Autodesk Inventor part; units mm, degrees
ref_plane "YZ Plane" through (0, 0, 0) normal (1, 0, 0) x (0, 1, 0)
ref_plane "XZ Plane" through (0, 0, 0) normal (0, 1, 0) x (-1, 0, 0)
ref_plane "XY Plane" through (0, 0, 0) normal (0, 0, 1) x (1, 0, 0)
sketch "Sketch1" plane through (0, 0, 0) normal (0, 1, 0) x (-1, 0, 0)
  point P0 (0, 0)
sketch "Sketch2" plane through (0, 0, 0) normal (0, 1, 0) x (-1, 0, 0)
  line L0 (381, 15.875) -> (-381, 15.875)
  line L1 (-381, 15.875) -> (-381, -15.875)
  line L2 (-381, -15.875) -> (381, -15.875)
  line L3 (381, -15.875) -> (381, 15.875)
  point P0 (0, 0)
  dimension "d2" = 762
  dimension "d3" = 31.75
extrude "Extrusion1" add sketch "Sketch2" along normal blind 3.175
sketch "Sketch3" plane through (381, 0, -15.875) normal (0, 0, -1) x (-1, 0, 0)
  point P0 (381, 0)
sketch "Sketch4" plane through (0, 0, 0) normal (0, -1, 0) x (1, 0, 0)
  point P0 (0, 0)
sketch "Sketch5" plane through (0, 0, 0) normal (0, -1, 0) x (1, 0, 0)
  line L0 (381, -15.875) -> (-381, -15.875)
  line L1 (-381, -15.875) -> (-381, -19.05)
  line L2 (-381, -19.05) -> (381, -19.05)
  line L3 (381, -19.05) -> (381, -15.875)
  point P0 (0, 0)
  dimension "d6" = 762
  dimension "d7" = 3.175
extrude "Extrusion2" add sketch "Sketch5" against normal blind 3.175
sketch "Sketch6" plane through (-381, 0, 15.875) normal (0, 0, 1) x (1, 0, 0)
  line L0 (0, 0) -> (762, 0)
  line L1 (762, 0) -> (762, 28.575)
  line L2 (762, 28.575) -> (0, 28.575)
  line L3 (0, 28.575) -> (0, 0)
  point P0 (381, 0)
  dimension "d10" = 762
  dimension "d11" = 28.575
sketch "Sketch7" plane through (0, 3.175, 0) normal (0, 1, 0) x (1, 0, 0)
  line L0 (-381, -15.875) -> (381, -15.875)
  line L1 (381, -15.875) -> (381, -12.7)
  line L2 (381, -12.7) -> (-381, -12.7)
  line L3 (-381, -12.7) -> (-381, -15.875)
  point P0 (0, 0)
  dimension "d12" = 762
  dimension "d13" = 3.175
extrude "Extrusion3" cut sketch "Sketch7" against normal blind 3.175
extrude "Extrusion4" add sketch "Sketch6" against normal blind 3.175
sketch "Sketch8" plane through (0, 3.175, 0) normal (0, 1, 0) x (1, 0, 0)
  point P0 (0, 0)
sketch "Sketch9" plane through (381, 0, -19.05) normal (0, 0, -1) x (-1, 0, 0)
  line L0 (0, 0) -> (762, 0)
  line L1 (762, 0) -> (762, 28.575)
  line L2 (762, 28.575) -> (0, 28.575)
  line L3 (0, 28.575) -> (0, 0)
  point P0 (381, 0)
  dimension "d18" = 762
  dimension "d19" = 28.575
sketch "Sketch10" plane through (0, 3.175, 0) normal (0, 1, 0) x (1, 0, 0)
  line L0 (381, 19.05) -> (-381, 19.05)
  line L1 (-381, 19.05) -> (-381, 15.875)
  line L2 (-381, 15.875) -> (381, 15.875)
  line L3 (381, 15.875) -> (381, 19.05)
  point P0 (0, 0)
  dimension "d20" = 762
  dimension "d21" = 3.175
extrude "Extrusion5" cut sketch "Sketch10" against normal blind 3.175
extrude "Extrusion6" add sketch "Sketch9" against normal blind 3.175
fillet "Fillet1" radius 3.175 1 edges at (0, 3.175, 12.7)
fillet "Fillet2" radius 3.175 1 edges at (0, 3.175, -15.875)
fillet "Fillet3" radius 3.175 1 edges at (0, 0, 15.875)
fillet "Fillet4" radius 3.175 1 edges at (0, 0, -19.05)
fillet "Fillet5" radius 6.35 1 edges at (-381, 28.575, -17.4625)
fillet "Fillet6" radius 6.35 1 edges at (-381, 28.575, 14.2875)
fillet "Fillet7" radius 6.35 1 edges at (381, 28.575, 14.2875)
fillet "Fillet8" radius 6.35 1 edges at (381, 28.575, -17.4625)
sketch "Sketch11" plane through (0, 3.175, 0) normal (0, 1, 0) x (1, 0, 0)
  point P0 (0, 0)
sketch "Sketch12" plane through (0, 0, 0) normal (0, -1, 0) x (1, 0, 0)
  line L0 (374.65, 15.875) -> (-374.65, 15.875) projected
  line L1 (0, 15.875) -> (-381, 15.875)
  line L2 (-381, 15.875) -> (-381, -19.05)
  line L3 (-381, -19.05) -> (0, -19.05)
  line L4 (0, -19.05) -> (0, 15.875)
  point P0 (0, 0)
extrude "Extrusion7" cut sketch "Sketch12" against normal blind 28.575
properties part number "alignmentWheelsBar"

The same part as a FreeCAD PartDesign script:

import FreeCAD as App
import Part
import Sketcher
from FreeCAD import Vector
Q = App.Units.Quantity


def edges_at(feature, points):
    """Names of the edges that pass closest to the given points."""
    edges = feature.Shape.Edges
    near = lambda p: min(range(len(edges)), key=lambda i: edges[i].distToShape(Part.Vertex(*p))[0])
    return sorted({f"Edge{near(p) + 1}" for p in points})

doc = App.newDocument("Part")
body = doc.addObject("PartDesign::Body", "Body")

# Sketch on XZ plane
sketch1 = doc.addObject("Sketcher::SketchObject", "Sketch")
body.addObject(sketch1)
sketch1.AttachmentSupport = (doc.XZ_Plane, [""])
sketch1.MapMode = "FlatFace"
sketch1.addGeometry(Part.LineSegment(Vector(-381, -15.875, 0), Vector(-381, 15.875, 0)), False)
sketch1.addGeometry(Part.LineSegment(Vector(-381, 15.875, 0), Vector(381, 15.875, 0)), False)
sketch1.addGeometry(Part.LineSegment(Vector(381, 15.875, 0), Vector(381, -15.875, 0)), False)
sketch1.addGeometry(Part.LineSegment(Vector(381, -15.875, 0), Vector(-381, -15.875, 0)), False)
sketch1.addConstraint(Sketcher.Constraint("Coincident", 0, 2, 1, 1))
sketch1.addConstraint(Sketcher.Constraint("Coincident", 1, 2, 2, 1))
sketch1.addConstraint(Sketcher.Constraint("Coincident", 2, 2, 3, 1))
sketch1.addConstraint(Sketcher.Constraint("Coincident", 3, 2, 0, 1))
sketch1.addConstraint(Sketcher.Constraint("Vertical", 0))
sketch1.addConstraint(Sketcher.Constraint("Horizontal", 1))
sketch1.addConstraint(Sketcher.Constraint("Vertical", 2))
sketch1.addConstraint(Sketcher.Constraint("Horizontal", 3))
sketch1.addConstraint(Sketcher.Constraint("Symmetric", 0, 2, 2, 2, -1, 1))
sketch1.addConstraint(Sketcher.Constraint("DistanceX", 1, 1, 1, 2, Q("30 in")))
sketch1.addConstraint(Sketcher.Constraint("DistanceY", 0, 1, 0, 2, Q("1.25 in")))
pad1 = doc.addObject("PartDesign::Pad", "Pad")
body.addObject(pad1)
pad1.Profile = sketch1
pad1.Length = Q("0.125 in")
pad1.Reversed = True

# Sketch on XZ plane
sketch2 = doc.addObject("Sketcher::SketchObject", "Sketch001")
body.addObject(sketch2)
sketch2.AttachmentSupport = (doc.XZ_Plane, [""])
sketch2.MapMode = "FlatFace"
sketch2.addGeometry(Part.LineSegment(Vector(381, -19.05, 0), Vector(381, -15.875, 0)), False)
sketch2.addGeometry(Part.LineSegment(Vector(381, -15.875, 0), Vector(-381, -15.875, 0)), False)
sketch2.addGeometry(Part.LineSegment(Vector(-381, -15.875, 0), Vector(-381, -19.05, 0)), False)
sketch2.addGeometry(Part.LineSegment(Vector(-381, -19.05, 0), Vector(381, -19.05, 0)), False)
sketch2.addConstraint(Sketcher.Constraint("Coincident", 0, 2, 1, 1))
sketch2.addConstraint(Sketcher.Constraint("Coincident", 1, 2, 2, 1))
sketch2.addConstraint(Sketcher.Constraint("Coincident", 2, 2, 3, 1))
sketch2.addConstraint(Sketcher.Constraint("Coincident", 3, 2, 0, 1))
sketch2.addConstraint(Sketcher.Constraint("Vertical", 0))
sketch2.addConstraint(Sketcher.Constraint("Horizontal", 1))
sketch2.addConstraint(Sketcher.Constraint("Vertical", 2))
sketch2.addConstraint(Sketcher.Constraint("Horizontal", 3))
sketch2.addConstraint(Sketcher.Constraint("DistanceX", 1, 2, 1, 1, Q("30 in")))
sketch2.addConstraint(Sketcher.Constraint("DistanceY", 0, 1, 0, 2, Q("0.125 in")))
sketch2.addConstraint(Sketcher.Constraint("DistanceX", -1, 1, 0, 2, Q("15 in")))
sketch2.addConstraint(Sketcher.Constraint("DistanceY", 2, 2, -1, 1, Q("0.75 in")))
pad2 = doc.addObject("PartDesign::Pad", "Pad001")
body.addObject(pad2)
pad2.Profile = sketch2
pad2.Length = Q("0.125 in")
pad2.Reversed = True

# Sketch on XZ plane
sketch3 = doc.addObject("Sketcher::SketchObject", "Sketch002")
body.addObject(sketch3)
sketch3.AttachmentSupport = (doc.XZ_Plane, [""])
sketch3.MapMode = "FlatFace"
sketch3.AttachmentOffset = App.Placement(Vector(0, 0, -0.125 * 25.4), App.Rotation())
sketch3.addGeometry(Part.LineSegment(Vector(-381, 12.7, 0), Vector(-381, 15.875, 0)), False)
sketch3.addGeometry(Part.LineSegment(Vector(-381, 15.875, 0), Vector(381, 15.875, 0)), False)
sketch3.addGeometry(Part.LineSegment(Vector(381, 15.875, 0), Vector(381, 12.7, 0)), False)
sketch3.addGeometry(Part.LineSegment(Vector(381, 12.7, 0), Vector(-381, 12.7, 0)), False)
sketch3.addConstraint(Sketcher.Constraint("Coincident", 0, 2, 1, 1))
sketch3.addConstraint(Sketcher.Constraint("Coincident", 1, 2, 2, 1))
sketch3.addConstraint(Sketcher.Constraint("Coincident", 2, 2, 3, 1))
sketch3.addConstraint(Sketcher.Constraint("Coincident", 3, 2, 0, 1))
sketch3.addConstraint(Sketcher.Constraint("Vertical", 0))
sketch3.addConstraint(Sketcher.Constraint("Horizontal", 1))
sketch3.addConstraint(Sketcher.Constraint("Vertical", 2))
sketch3.addConstraint(Sketcher.Constraint("Horizontal", 3))
sketch3.addConstraint(Sketcher.Constraint("DistanceX", 1, 1, 1, 2, Q("30 in")))
sketch3.addConstraint(Sketcher.Constraint("DistanceY", 0, 1, 0, 2, Q("0.125 in")))
sketch3.addConstraint(Sketcher.Constraint("DistanceX", 0, 2, -1, 1, Q("15 in")))
sketch3.addConstraint(Sketcher.Constraint("DistanceY", -1, 1, 2, 2, Q("0.5 in")))
pocket1 = doc.addObject("PartDesign::Pocket", "Pocket")
body.addObject(pocket1)
pocket1.Profile = sketch3
pocket1.Length = Q("0.125 in")
pocket1.Reversed = True

# Sketch on XY plane
sketch4 = doc.addObject("Sketcher::SketchObject", "Sketch003")
body.addObject(sketch4)
sketch4.AttachmentSupport = (doc.XY_Plane, [""])
sketch4.MapMode = "FlatFace"
sketch4.AttachmentOffset = App.Placement(Vector(0, 0, 0.625 * 25.4), App.Rotation())
sketch4.addGeometry(Part.LineSegment(Vector(-381, 28.575, 0), Vector(-381, 0, 0)), False)
sketch4.addGeometry(Part.LineSegment(Vector(-381, 0, 0), Vector(381, 0, 0)), False)
sketch4.addGeometry(Part.LineSegment(Vector(381, 0, 0), Vector(381, 28.575, 0)), False)
sketch4.addGeometry(Part.LineSegment(Vector(381, 28.575, 0), Vector(-381, 28.575, 0)), False)
sketch4.addConstraint(Sketcher.Constraint("Coincident", 0, 2, 1, 1))
sketch4.addConstraint(Sketcher.Constraint("Coincident", 1, 2, 2, 1))
sketch4.addConstraint(Sketcher.Constraint("Coincident", 2, 2, 3, 1))
sketch4.addConstraint(Sketcher.Constraint("Coincident", 3, 2, 0, 1))
sketch4.addConstraint(Sketcher.Constraint("Vertical", 0))
sketch4.addConstraint(Sketcher.Constraint("Horizontal", 1))
sketch4.addConstraint(Sketcher.Constraint("Vertical", 2))
sketch4.addConstraint(Sketcher.Constraint("Horizontal", 3))
sketch4.addConstraint(Sketcher.Constraint("Symmetric", 0, 2, 1, 2, -1, 1))
sketch4.addConstraint(Sketcher.Constraint("DistanceX", 1, 1, 1, 2, Q("30 in")))
sketch4.addConstraint(Sketcher.Constraint("DistanceY", 0, 2, 0, 1, Q("1.125 in")))
pad3 = doc.addObject("PartDesign::Pad", "Pad002")
body.addObject(pad3)
pad3.Profile = sketch4
pad3.Length = Q("0.125 in")
pad3.Reversed = True

# Sketch on XZ plane
sketch5 = doc.addObject("Sketcher::SketchObject", "Sketch004")
body.addObject(sketch5)
sketch5.AttachmentSupport = (doc.XZ_Plane, [""])
sketch5.MapMode = "FlatFace"
sketch5.AttachmentOffset = App.Placement(Vector(0, 0, -0.125 * 25.4), App.Rotation())
sketch5.addGeometry(Part.LineSegment(Vector(381, -15.875, 0), Vector(381, -19.05, 0)), False)
sketch5.addGeometry(Part.LineSegment(Vector(381, -19.05, 0), Vector(-381, -19.05, 0)), False)
sketch5.addGeometry(Part.LineSegment(Vector(-381, -19.05, 0), Vector(-381, -15.875, 0)), False)
sketch5.addGeometry(Part.LineSegment(Vector(-381, -15.875, 0), Vector(381, -15.875, 0)), False)
sketch5.addConstraint(Sketcher.Constraint("Coincident", 0, 2, 1, 1))
sketch5.addConstraint(Sketcher.Constraint("Coincident", 1, 2, 2, 1))
sketch5.addConstraint(Sketcher.Constraint("Coincident", 2, 2, 3, 1))
sketch5.addConstraint(Sketcher.Constraint("Coincident", 3, 2, 0, 1))
sketch5.addConstraint(Sketcher.Constraint("Vertical", 0))
sketch5.addConstraint(Sketcher.Constraint("Horizontal", 1))
sketch5.addConstraint(Sketcher.Constraint("Vertical", 2))
sketch5.addConstraint(Sketcher.Constraint("Horizontal", 3))
sketch5.addConstraint(Sketcher.Constraint("DistanceX", 1, 2, 1, 1, Q("30 in")))
sketch5.addConstraint(Sketcher.Constraint("DistanceY", 0, 2, 0, 1, Q("0.125 in")))
sketch5.addConstraint(Sketcher.Constraint("DistanceX", -1, 1, 0, 2, Q("15 in")))
sketch5.addConstraint(Sketcher.Constraint("DistanceY", 0, 2, -1, 1, Q("0.75 in")))
pocket2 = doc.addObject("PartDesign::Pocket", "Pocket001")
body.addObject(pocket2)
pocket2.Profile = sketch5
pocket2.Length = Q("0.125 in")
pocket2.Reversed = True

# Sketch on XY plane
sketch6 = doc.addObject("Sketcher::SketchObject", "Sketch005")
body.addObject(sketch6)
sketch6.AttachmentSupport = (doc.XY_Plane, [""])
sketch6.MapMode = "FlatFace"
sketch6.AttachmentOffset = App.Placement(Vector(0, 0, -0.75 * 25.4), App.Rotation())
sketch6.addGeometry(Part.LineSegment(Vector(381, 28.575, 0), Vector(381, 0, 0)), False)
sketch6.addGeometry(Part.LineSegment(Vector(381, 0, 0), Vector(-381, 0, 0)), False)
sketch6.addGeometry(Part.LineSegment(Vector(-381, 0, 0), Vector(-381, 28.575, 0)), False)
sketch6.addGeometry(Part.LineSegment(Vector(-381, 28.575, 0), Vector(381, 28.575, 0)), False)
sketch6.addConstraint(Sketcher.Constraint("Coincident", 0, 2, 1, 1))
sketch6.addConstraint(Sketcher.Constraint("Coincident", 1, 2, 2, 1))
sketch6.addConstraint(Sketcher.Constraint("Coincident", 2, 2, 3, 1))
sketch6.addConstraint(Sketcher.Constraint("Coincident", 3, 2, 0, 1))
sketch6.addConstraint(Sketcher.Constraint("Vertical", 0))
sketch6.addConstraint(Sketcher.Constraint("Horizontal", 1))
sketch6.addConstraint(Sketcher.Constraint("Vertical", 2))
sketch6.addConstraint(Sketcher.Constraint("Horizontal", 3))
sketch6.addConstraint(Sketcher.Constraint("Symmetric", 0, 2, 1, 2, -1, 1))
sketch6.addConstraint(Sketcher.Constraint("DistanceX", 1, 2, 1, 1, Q("30 in")))
sketch6.addConstraint(Sketcher.Constraint("DistanceY", 0, 2, 0, 1, Q("1.125 in")))
pad4 = doc.addObject("PartDesign::Pad", "Pad003")
body.addObject(pad4)
pad4.Profile = sketch6
pad4.Length = Q("0.125 in")
doc.recompute()

fillet = doc.addObject("PartDesign::Fillet", "Fillet")
body.addObject(fillet)
fillet.Base = (pad4, edges_at(pad4, [(0, 3.175, 12.7)]))
fillet.Radius = Q("0.125 in")
doc.recompute()

fillet2 = doc.addObject("PartDesign::Fillet", "Fillet001")
body.addObject(fillet2)
fillet2.Base = (fillet, edges_at(fillet, [(0, 3.175, -15.875)]))
fillet2.Radius = Q("0.125 in")
doc.recompute()

fillet3 = doc.addObject("PartDesign::Fillet", "Fillet002")
body.addObject(fillet3)
fillet3.Base = (fillet2, edges_at(fillet2, [(0, 0, 15.875)]))
fillet3.Radius = Q("0.125 in")
doc.recompute()

fillet4 = doc.addObject("PartDesign::Fillet", "Fillet003")
body.addObject(fillet4)
fillet4.Base = (fillet3, edges_at(fillet3, [(0, 0, -19.05)]))
fillet4.Radius = Q("0.125 in")
doc.recompute()

fillet5 = doc.addObject("PartDesign::Fillet", "Fillet004")
body.addObject(fillet5)
fillet5.Base = (fillet4, edges_at(fillet4, [(-381, 28.575, -17.462)]))
fillet5.Radius = Q("0.25 in")
doc.recompute()

fillet6 = doc.addObject("PartDesign::Fillet", "Fillet005")
body.addObject(fillet6)
fillet6.Base = (fillet5, edges_at(fillet5, [(-381, 28.575, 14.287)]))
fillet6.Radius = Q("0.25 in")
doc.recompute()

fillet7 = doc.addObject("PartDesign::Fillet", "Fillet006")
body.addObject(fillet7)
fillet7.Base = (fillet6, edges_at(fillet6, [(381, 28.575, 14.287)]))
fillet7.Radius = Q("0.25 in")
doc.recompute()

fillet8 = doc.addObject("PartDesign::Fillet", "Fillet007")
body.addObject(fillet8)
fillet8.Base = (fillet7, edges_at(fillet7, [(381, 28.575, -17.462)]))
fillet8.Radius = Q("0.25 in")

# Sketch on XZ plane
sketch7 = doc.addObject("Sketcher::SketchObject", "Sketch006")
body.addObject(sketch7)
sketch7.AttachmentSupport = (doc.XZ_Plane, [""])
sketch7.MapMode = "FlatFace"
sketch7.addGeometry(Part.LineSegment(Vector(0, -19.05, 0), Vector(0, 15.875, 0)), False)
sketch7.addGeometry(Part.LineSegment(Vector(0, 15.875, 0), Vector(-381, 15.875, 0)), False)
sketch7.addGeometry(Part.LineSegment(Vector(-381, 15.875, 0), Vector(-381, -19.05, 0)), False)
sketch7.addGeometry(Part.LineSegment(Vector(-381, -19.05, 0), Vector(0, -19.05, 0)), False)
sketch7.addConstraint(Sketcher.Constraint("Coincident", 0, 2, 1, 1))
sketch7.addConstraint(Sketcher.Constraint("Coincident", 1, 2, 2, 1))
sketch7.addConstraint(Sketcher.Constraint("Coincident", 2, 2, 3, 1))
sketch7.addConstraint(Sketcher.Constraint("Coincident", 3, 2, 0, 1))
sketch7.addConstraint(Sketcher.Constraint("Vertical", 0))
sketch7.addConstraint(Sketcher.Constraint("Horizontal", 1))
sketch7.addConstraint(Sketcher.Constraint("Vertical", 2))
sketch7.addConstraint(Sketcher.Constraint("Horizontal", 3))
sketch7.addConstraint(Sketcher.Constraint("PointOnObject", 0, 2, -2))
sketch7.addConstraint(Sketcher.Constraint("DistanceX", 1, 2, 1, 1, Q("15 in")))
sketch7.addConstraint(Sketcher.Constraint("DistanceY", 0, 1, 0, 2, Q("1.375 in")))
sketch7.addConstraint(Sketcher.Constraint("DistanceY", 2, 2, -1, 1, Q("0.75 in")))
pocket3 = doc.addObject("PartDesign::Pocket", "Pocket002")
body.addObject(pocket3)
pocket3.Profile = sketch7
pocket3.Length = Q("1.125 in")

doc.recompute()
